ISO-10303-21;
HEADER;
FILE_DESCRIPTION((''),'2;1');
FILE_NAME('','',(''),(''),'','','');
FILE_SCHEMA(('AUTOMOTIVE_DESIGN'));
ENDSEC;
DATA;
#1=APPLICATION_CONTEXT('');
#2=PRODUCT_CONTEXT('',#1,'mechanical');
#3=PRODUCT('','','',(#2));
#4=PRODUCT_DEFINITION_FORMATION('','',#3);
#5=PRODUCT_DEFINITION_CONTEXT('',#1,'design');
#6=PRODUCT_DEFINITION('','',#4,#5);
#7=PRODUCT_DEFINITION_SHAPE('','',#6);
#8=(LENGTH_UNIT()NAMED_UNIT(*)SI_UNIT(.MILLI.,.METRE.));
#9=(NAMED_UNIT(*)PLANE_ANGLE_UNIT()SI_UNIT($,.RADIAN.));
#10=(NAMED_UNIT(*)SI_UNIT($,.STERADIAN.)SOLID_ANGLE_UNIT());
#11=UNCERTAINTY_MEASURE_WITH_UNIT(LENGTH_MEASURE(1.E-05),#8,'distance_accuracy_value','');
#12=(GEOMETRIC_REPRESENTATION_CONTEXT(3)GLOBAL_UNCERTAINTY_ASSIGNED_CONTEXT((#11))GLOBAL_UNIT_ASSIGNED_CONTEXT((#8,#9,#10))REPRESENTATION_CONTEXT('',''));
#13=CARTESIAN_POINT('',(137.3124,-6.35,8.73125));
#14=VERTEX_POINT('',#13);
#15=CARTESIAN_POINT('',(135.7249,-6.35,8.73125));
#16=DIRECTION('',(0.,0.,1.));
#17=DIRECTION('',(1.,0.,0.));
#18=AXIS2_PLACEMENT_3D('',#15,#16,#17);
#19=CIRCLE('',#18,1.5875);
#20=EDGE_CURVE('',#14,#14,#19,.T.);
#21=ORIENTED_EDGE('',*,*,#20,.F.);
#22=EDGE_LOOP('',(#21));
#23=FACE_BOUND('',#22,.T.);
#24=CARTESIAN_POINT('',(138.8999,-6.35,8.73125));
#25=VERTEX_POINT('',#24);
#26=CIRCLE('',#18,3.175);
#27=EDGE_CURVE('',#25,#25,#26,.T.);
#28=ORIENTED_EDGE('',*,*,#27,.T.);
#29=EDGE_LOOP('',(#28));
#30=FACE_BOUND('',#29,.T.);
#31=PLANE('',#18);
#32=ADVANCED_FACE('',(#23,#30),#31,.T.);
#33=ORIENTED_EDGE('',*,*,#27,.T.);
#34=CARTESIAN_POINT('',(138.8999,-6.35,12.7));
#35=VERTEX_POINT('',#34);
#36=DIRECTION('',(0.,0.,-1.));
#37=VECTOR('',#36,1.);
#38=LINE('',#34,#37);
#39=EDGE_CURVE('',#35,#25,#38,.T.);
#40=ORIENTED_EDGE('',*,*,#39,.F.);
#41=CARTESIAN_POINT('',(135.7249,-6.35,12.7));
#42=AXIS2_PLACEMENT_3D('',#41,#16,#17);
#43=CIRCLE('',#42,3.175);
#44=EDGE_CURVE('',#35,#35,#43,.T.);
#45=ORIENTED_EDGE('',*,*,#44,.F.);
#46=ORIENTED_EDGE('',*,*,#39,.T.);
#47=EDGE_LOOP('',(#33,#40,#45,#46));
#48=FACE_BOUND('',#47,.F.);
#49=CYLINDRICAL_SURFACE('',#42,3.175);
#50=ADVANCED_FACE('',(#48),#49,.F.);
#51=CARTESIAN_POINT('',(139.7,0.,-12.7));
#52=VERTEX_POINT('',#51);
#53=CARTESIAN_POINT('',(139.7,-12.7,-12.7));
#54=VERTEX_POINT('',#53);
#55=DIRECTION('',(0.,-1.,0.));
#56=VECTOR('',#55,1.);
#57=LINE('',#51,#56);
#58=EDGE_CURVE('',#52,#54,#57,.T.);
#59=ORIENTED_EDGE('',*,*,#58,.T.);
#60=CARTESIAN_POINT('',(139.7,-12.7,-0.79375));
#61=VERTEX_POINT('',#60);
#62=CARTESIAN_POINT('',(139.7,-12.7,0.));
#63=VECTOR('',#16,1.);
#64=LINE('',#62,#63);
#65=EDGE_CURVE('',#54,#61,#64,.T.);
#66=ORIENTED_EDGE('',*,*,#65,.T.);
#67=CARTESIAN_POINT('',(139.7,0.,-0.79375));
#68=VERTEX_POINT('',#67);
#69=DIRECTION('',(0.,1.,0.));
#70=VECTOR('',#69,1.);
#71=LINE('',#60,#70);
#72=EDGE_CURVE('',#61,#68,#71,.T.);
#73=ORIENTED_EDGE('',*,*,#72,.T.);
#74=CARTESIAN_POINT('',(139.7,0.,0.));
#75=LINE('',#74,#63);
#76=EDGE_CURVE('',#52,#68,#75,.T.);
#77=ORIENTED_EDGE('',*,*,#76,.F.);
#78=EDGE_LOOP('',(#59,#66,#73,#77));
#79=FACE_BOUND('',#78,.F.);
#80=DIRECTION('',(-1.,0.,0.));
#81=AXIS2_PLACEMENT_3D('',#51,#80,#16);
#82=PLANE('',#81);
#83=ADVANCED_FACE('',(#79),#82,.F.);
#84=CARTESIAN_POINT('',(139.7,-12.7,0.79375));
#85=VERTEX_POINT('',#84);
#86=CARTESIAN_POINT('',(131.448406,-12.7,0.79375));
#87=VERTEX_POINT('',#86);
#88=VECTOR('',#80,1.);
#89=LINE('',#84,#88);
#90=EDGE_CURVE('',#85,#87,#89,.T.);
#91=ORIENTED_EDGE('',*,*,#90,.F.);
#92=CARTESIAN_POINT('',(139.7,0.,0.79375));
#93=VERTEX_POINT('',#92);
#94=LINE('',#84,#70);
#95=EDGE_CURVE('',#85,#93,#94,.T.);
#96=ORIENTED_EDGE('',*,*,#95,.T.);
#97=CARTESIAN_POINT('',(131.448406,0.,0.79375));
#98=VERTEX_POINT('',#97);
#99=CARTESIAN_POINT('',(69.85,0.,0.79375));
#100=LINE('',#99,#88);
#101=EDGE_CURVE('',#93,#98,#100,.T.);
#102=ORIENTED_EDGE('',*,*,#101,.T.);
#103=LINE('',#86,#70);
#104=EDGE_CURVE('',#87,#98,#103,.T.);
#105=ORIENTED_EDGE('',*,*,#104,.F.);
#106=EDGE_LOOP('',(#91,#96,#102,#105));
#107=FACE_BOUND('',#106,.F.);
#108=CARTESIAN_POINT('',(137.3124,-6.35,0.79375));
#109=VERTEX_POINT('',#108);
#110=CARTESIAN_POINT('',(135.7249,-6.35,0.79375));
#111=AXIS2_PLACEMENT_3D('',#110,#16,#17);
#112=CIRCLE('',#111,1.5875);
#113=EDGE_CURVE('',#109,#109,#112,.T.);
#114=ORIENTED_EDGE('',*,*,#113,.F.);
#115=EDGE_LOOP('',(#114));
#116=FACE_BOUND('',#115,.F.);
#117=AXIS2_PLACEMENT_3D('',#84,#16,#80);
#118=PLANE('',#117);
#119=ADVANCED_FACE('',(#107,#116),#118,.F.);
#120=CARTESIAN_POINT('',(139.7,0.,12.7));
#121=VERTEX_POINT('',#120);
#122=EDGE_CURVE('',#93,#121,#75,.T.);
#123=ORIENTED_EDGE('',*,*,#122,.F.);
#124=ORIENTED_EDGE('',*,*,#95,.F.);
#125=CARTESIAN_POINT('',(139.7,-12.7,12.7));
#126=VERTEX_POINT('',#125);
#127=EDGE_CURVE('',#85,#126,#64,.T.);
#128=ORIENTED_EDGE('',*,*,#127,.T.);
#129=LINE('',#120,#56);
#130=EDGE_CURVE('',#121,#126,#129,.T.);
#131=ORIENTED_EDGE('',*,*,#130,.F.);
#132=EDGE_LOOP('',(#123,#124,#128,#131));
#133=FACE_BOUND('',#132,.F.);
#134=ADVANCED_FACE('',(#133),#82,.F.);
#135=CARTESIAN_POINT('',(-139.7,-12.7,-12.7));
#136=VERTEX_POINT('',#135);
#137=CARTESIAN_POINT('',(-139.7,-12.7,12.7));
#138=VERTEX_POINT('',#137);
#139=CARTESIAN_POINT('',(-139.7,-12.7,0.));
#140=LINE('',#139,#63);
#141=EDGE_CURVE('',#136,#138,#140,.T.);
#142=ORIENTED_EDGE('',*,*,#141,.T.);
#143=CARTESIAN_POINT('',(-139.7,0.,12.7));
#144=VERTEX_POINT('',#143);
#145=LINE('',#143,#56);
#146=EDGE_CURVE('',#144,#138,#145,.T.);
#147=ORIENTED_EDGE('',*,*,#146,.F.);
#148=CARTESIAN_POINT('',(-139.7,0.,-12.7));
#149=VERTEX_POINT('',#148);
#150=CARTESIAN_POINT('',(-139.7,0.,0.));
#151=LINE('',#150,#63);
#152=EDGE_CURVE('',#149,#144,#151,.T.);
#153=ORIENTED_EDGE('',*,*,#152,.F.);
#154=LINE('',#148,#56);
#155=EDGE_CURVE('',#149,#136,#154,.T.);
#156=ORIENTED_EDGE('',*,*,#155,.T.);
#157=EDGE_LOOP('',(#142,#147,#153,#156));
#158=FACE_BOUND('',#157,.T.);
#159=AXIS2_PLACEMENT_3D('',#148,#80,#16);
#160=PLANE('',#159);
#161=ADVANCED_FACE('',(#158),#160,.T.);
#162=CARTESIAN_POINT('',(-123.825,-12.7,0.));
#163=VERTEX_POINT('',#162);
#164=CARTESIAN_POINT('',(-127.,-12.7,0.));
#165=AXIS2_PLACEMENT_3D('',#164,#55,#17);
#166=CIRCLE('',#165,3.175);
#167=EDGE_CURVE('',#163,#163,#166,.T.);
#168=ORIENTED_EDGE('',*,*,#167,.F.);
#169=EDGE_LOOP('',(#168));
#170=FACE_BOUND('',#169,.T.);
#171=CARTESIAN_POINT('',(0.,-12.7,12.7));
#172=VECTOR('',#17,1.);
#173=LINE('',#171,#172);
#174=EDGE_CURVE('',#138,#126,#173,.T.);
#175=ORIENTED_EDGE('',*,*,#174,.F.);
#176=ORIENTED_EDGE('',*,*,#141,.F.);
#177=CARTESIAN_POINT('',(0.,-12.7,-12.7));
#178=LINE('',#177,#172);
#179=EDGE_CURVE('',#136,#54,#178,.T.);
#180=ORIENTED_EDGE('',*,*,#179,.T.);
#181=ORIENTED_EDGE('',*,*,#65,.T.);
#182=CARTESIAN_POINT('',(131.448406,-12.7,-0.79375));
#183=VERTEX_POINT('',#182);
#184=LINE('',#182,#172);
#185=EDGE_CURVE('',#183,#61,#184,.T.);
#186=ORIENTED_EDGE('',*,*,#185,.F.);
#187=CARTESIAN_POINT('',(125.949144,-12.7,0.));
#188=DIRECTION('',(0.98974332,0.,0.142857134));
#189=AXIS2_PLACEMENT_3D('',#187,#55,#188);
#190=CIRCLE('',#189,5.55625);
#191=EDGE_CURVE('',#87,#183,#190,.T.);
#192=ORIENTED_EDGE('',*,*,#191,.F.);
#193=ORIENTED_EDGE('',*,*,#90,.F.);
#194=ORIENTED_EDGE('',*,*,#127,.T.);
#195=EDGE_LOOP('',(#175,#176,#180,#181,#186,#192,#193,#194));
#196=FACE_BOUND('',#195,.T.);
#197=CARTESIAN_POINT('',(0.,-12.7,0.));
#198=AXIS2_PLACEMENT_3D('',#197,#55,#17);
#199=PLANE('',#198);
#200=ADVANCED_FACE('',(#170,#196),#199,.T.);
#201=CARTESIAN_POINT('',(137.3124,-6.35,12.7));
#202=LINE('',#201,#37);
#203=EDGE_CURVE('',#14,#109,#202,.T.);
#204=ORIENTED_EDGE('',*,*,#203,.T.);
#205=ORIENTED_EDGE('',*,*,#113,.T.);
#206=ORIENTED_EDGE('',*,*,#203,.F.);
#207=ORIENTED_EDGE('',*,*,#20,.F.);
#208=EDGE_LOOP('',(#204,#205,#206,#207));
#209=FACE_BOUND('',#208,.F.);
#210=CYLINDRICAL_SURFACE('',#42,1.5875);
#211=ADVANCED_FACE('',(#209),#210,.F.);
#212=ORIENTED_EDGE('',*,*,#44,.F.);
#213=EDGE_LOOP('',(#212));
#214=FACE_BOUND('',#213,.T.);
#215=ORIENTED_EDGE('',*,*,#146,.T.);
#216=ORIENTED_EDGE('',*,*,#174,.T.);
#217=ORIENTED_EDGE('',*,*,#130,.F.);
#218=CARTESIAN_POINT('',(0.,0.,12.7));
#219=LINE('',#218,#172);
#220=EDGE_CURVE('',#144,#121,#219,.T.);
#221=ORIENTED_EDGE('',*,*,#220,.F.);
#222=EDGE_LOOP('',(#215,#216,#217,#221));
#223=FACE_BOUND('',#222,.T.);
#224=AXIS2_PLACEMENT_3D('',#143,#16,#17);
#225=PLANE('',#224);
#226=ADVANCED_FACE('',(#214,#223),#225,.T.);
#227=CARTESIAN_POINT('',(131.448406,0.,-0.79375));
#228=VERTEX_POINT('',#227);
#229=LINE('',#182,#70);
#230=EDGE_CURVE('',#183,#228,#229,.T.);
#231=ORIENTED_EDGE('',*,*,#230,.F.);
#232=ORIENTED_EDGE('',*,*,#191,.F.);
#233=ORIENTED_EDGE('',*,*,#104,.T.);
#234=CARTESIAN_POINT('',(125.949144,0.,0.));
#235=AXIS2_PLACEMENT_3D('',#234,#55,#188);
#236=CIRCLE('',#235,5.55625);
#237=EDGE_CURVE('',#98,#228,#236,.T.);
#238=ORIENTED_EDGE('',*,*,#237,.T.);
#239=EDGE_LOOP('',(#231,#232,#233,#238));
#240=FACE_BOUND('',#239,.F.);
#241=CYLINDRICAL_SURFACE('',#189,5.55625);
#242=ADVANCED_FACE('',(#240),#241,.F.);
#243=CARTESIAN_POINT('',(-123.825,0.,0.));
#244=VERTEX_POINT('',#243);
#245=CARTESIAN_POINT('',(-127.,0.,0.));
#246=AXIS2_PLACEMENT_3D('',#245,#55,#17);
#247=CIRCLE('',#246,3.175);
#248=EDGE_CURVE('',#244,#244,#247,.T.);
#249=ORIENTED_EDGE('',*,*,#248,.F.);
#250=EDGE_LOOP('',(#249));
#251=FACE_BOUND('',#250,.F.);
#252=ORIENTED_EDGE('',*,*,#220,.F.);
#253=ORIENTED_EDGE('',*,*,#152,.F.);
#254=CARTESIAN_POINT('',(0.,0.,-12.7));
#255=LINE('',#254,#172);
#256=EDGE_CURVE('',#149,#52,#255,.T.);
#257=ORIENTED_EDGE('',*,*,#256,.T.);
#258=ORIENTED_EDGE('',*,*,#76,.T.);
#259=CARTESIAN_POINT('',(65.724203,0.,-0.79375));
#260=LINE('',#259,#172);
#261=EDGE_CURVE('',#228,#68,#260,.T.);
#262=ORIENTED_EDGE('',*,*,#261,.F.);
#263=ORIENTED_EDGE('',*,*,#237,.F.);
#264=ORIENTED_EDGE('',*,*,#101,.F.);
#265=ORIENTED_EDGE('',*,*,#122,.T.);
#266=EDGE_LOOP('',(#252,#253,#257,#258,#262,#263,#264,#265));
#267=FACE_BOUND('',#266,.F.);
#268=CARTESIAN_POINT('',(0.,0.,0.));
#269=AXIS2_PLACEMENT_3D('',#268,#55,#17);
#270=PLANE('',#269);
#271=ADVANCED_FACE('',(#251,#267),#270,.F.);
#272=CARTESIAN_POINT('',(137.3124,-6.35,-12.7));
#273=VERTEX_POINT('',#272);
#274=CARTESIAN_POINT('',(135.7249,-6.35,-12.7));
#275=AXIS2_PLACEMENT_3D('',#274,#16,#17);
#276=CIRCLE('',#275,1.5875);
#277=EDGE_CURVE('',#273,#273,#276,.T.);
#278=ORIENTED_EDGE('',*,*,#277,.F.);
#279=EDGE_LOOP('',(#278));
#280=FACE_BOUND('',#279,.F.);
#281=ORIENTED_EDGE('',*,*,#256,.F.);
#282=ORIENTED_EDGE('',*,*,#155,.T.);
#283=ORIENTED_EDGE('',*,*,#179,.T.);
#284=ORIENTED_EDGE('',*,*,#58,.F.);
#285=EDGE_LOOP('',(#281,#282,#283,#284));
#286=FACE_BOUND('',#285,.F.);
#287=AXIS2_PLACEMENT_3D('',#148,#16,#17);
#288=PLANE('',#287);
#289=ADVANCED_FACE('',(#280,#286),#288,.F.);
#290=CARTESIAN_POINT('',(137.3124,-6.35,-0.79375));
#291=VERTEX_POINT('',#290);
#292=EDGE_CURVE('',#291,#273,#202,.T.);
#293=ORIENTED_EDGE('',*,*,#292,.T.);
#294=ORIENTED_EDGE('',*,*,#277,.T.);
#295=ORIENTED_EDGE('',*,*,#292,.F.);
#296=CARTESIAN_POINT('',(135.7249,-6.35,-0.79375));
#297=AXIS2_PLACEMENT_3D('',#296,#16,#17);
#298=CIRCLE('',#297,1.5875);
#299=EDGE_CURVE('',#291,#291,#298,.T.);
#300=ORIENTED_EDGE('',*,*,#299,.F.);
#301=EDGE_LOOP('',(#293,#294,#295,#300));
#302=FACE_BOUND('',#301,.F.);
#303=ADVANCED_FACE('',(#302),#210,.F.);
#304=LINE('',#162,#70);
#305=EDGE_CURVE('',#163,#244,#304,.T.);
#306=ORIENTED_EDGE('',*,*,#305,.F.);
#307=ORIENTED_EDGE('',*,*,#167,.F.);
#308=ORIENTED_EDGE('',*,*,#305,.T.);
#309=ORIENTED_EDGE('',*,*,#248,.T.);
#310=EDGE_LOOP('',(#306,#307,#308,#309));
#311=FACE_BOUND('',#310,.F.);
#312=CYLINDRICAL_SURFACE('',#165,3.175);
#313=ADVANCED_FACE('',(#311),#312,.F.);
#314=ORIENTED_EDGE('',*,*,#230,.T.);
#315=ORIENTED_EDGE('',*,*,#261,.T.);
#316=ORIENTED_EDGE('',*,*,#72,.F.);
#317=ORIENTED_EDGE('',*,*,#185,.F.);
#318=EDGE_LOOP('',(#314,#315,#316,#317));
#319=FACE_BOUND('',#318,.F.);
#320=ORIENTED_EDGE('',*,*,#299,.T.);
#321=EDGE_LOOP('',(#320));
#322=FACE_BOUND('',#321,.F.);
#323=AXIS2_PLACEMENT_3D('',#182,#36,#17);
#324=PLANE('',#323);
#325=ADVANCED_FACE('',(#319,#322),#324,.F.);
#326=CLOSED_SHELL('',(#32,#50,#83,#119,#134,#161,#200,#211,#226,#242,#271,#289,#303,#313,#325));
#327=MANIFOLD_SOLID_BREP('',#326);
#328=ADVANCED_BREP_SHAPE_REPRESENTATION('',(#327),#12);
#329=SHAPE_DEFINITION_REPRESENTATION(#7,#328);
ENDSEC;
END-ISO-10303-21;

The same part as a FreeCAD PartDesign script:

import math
import FreeCAD as App
import Part
import Sketcher
from FreeCAD import Vector
Q = App.Units.Quantity

doc = App.newDocument("Part")
body = doc.addObject("PartDesign::Body", "Body")

# Sketch on XZ plane
sketch1 = body.newObject("Sketcher::SketchObject", "Sketch")
sketch1.AttachmentSupport = (doc.getObject("XZ_Plane"), [""])
sketch1.MapMode = "FlatFace"
sketch1.addGeometry(Part.LineSegment(Vector(-140, 13, 0), Vector(-140, -13, 0)), False)
sketch1.addGeometry(Part.LineSegment(Vector(-140, -13, 0), Vector(140, -13, 0)), False)
sketch1.addGeometry(Part.LineSegment(Vector(140, -13, 0), Vector(140, 13, 0)), False)
sketch1.addGeometry(Part.LineSegment(Vector(140, 13, 0), Vector(-140, 13, 0)), False)
sketch1.addConstraint(Sketcher.Constraint("Coincident", 0, 2, 1, 1))
sketch1.addConstraint(Sketcher.Constraint("Coincident", 1, 2, 2, 1))
sketch1.addConstraint(Sketcher.Constraint("Coincident", 2, 2, 3, 1))
sketch1.addConstraint(Sketcher.Constraint("Coincident", 3, 2, 0, 1))
sketch1.addConstraint(Sketcher.Constraint("Vertical", 0))
sketch1.addConstraint(Sketcher.Constraint("Horizontal", 1))
sketch1.addConstraint(Sketcher.Constraint("Vertical", 2))
sketch1.addConstraint(Sketcher.Constraint("Horizontal", 3))
sketch1.addConstraint(Sketcher.Constraint("Symmetric", 0, 2, 2, 2, -1, 1))
sketch1.addConstraint(Sketcher.Constraint("DistanceX", 1, 1, 1, 2, Q("11 in")))
sketch1.addConstraint(Sketcher.Constraint("DistanceY", 0, 2, 0, 1, Q("1 in")))
pad1 = body.newObject("PartDesign::Pad", "Pad")
pad1.Profile = sketch1
pad1.Length = Q("0.5 in")

# Sketch on XY plane
sketch2 = body.newObject("Sketcher::SketchObject", "Sketch001")
sketch2.AttachmentSupport = (doc.getObject("XY_Plane"), [""])
sketch2.MapMode = "FlatFace"
sketch2.AttachmentOffset = App.Placement(Vector(0, 0, 0.5 * 25.4), App.Rotation())
sketch2.addGeometry(Part.Circle(Vector(135.7, -6.3, 0), Vector(0, 0, 1), 1.6), False)
sketch2.addConstraint(Sketcher.Constraint("Diameter", 0, Q("0.125 in")))
sketch2.addConstraint(Sketcher.Constraint("DistanceY", 0, 3, -1, 1, Q("0.25 in")))
sketch2.addConstraint(Sketcher.Constraint("DistanceX", -1, 1, 0, 3, Q("5.3435 in")))
pocket1 = body.newObject("PartDesign::Pocket", "Pocket")
pocket1.Profile = sketch2
pocket1.Type = "ThroughAll"

# Sketch on XY plane
sketch3 = body.newObject("Sketcher::SketchObject", "Sketch002")
sketch3.AttachmentSupport = (doc.getObject("XY_Plane"), [""])
sketch3.MapMode = "FlatFace"
sketch3.AttachmentOffset = App.Placement(Vector(0, 0, 0.5 * 25.4), App.Rotation())
sketch3.addGeometry(Part.Circle(Vector(135.7, -6.3, 0), Vector(0, 0, 1), 3.2), False)
sketch3.addConstraint(Sketcher.Constraint("Diameter", 0, Q("0.25 in")))
sketch3.addConstraint(Sketcher.Constraint("DistanceY", 0, 3, -1, 1, Q("0.25 in")))
sketch3.addConstraint(Sketcher.Constraint("DistanceX", -1, 1, 0, 3, Q("5.3435 in")))
pocket2 = body.newObject("PartDesign::Pocket", "Pocket001")
pocket2.Profile = sketch3
pocket2.Length = Q("0.15625 in")

# Sketch on XZ plane
sketch4 = body.newObject("Sketcher::SketchObject", "Sketch003")
sketch4.AttachmentSupport = (doc.getObject("XZ_Plane"), [""])
sketch4.MapMode = "FlatFace"
sketch4.AttachmentOffset = App.Placement(Vector(0, 0, 0.5 * 25.4), App.Rotation())
sketch4.addGeometry(Part.Circle(Vector(-127, 0, 0), Vector(0, 0, 1), 3.2), False)
sketch4.addGeometry(Part.LineSegment(Vector(139.7, 0.8, 0), Vector(131.4, 0.8, 0)), False)
sketch4.addGeometry(Part.ArcOfCircle(Part.Circle(Vector(125.9, 0, 0), Vector(0, 0, 1), 5.6), math.radians(8), math.radians(352)), False)
sketch4.addGeometry(Part.LineSegment(Vector(131.4, -0.8, 0), Vector(139.7, -0.8, 0)), False)
sketch4.addGeometry(Part.LineSegment(Vector(139.7, -0.8, 0), Vector(139.7, 0.8, 0)), False)
sketch4.addConstraint(Sketcher.Constraint("Coincident", 1, 2, 2, 1))
sketch4.addConstraint(Sketcher.Constraint("Coincident", 2, 2, 3, 1))
sketch4.addConstraint(Sketcher.Constraint("Coincident", 3, 2, 4, 1))
sketch4.addConstraint(Sketcher.Constraint("Coincident", 4, 2, 1, 1))
sketch4.addConstraint(Sketcher.Constraint("Horizontal", 1))
sketch4.addConstraint(Sketcher.Constraint("Horizontal", 3))
sketch4.addConstraint(Sketcher.Constraint("Vertical", 4))
sketch4.addConstraint(Sketcher.Constraint("Symmetric", 1, 2, 2, 2, -1))
sketch4.addConstraint(Sketcher.Constraint("PointOnObject", 0, 3, -1))
sketch4.addConstraint(Sketcher.Constraint("Diameter", 0, Q("0.25 in")))
sketch4.addConstraint(Sketcher.Constraint("DistanceX", 0, 3, -1, 1, Q("5 in")))
sketch4.addConstraint(Sketcher.Constraint("Radius", 2, Q("0.21875 in")))
sketch4.addConstraint(Sketcher.Constraint("DistanceX", -1, 1, 3, 2, Q("5.5 in")))
sketch4.addConstraint(Sketcher.Constraint("DistanceY", 4, 1, 4, 2, Q("0.0625 in")))
sketch4.addConstraint(Sketcher.Constraint("DistanceX", 1, 2, 1, 1, 8.251594))
pocket3 = body.newObject("PartDesign::Pocket", "Pocket002")
pocket3.Profile = sketch4
pocket3.Type = "ThroughAll"

doc.recompute()
